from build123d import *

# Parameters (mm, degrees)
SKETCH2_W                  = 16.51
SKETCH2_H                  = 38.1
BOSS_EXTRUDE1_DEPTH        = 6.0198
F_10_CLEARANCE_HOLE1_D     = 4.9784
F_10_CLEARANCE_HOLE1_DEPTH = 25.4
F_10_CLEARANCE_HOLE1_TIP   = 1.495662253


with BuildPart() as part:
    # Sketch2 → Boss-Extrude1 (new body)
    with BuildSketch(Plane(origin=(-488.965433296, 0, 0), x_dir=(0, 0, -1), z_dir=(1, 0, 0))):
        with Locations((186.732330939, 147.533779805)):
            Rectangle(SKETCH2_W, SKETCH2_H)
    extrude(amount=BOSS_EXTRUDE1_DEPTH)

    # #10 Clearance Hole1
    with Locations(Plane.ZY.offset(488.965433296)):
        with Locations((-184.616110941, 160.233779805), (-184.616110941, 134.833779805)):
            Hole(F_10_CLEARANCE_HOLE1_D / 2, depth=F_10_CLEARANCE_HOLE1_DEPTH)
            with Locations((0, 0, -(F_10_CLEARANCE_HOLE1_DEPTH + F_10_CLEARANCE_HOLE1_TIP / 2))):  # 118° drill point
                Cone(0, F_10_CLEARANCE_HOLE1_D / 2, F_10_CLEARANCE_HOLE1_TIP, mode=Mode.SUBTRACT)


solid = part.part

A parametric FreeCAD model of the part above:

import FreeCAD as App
import Part
import Sketcher

V = App.Vector
Q = App.Units.Quantity


def add_polygon(sketch, points):
    """Adds a closed chain of lines whose ends are joined by coincident constraints."""
    first, n = sketch.GeometryCount, len(points)
    for a, b in zip(points, points[1:] + points[:1]):
        sketch.addGeometry(Part.LineSegment(App.Vector(*a, 0), App.Vector(*b, 0)), False)
    for i in range(n):
        sketch.addConstraint(Sketcher.Constraint("Coincident", first + i, 2, first + (i + 1) % n, 1))

doc = App.newDocument("Part")
body = doc.addObject("PartDesign::Body", "Body")

# Sketch on YZ plane
sketch1 = doc.addObject("Sketcher::SketchObject", "Sketch")
body.addObject(sketch1)
sketch1.AttachmentSupport = (doc.YZ_Plane, [""])
sketch1.MapMode = "FlatFace"
sketch1.AttachmentOffset = App.Placement(V(0, 0, -488.965433), App.Rotation())
add_polygon(sketch1, [(166.58378, -178.477331), (128.48378, -178.477331), (128.48378, -194.987331), (166.58378, -194.987331)])  # lines 0-3
sketch1.addConstraint([
    Sketcher.Constraint("Horizontal", 0),
    Sketcher.Constraint("Vertical", 1),
    Sketcher.Constraint("Horizontal", 2),
    Sketcher.Constraint("Vertical", 3),
    Sketcher.Constraint("DistanceX", 0, 2, 0, 1, Q("1.5 in")),
    Sketcher.Constraint("DistanceY", 1, 2, 1, 1, Q("0.65 in")),
    Sketcher.Constraint("DistanceX", -1, 1, 0, 2, Q("128.48378 mm")),
    Sketcher.Constraint("DistanceY", 0, 2, -1, 1, Q("178.477331 mm")),
])
pad1 = doc.addObject("PartDesign::Pad", "Pad")
body.addObject(pad1)
pad1.Profile = sketch1
pad1.Length = Q("0.237 in")

# Sketch on YZ plane
sketch2 = doc.addObject("Sketcher::SketchObject", "Sketch001")
body.addObject(sketch2)
sketch2.AttachmentSupport = (doc.YZ_Plane, [""])
sketch2.MapMode = "FlatFace"
sketch2.AttachmentOffset = App.Placement(V(0, 0, -488.965433), App.Rotation())
sketch2.addGeometry([
    Part.Circle(V(160.23378, -184.616111, 0), V(0, 0, 1), 2.4892),
    Part.Circle(V(134.83378, -184.616111, 0), V(0, 0, 1), 2.4892),
], False)
sketch2.addConstraint([
    Sketcher.Constraint("Equal", 0, 1),
    Sketcher.Constraint("Horizontal", 0, 3, 1, 3),
    Sketcher.Constraint("Diameter", 0, Q("0.196 in")),
    Sketcher.Constraint("DistanceX", 1, 3, 0, 3, Q("1 in")),
    Sketcher.Constraint("DistanceX", -1, 1, 0, 3, Q("160.23378 mm")),
    Sketcher.Constraint("DistanceY", 0, 3, -1, 1, Q("184.616111 mm")),
])
doc.recompute()
hole = doc.addObject("PartDesign::Hole", "Hole")
body.addObject(hole)
hole.Profile = sketch2
hole.ThreadType = "None"
hole.Diameter = Q("0.196 in")
hole.DepthType = "Dimension"
hole.Depth = Q("1 in")
hole.DrillPoint = "Angled"
hole.DrillPointAngle = 118
hole.Reversed = True

doc.recompute()
